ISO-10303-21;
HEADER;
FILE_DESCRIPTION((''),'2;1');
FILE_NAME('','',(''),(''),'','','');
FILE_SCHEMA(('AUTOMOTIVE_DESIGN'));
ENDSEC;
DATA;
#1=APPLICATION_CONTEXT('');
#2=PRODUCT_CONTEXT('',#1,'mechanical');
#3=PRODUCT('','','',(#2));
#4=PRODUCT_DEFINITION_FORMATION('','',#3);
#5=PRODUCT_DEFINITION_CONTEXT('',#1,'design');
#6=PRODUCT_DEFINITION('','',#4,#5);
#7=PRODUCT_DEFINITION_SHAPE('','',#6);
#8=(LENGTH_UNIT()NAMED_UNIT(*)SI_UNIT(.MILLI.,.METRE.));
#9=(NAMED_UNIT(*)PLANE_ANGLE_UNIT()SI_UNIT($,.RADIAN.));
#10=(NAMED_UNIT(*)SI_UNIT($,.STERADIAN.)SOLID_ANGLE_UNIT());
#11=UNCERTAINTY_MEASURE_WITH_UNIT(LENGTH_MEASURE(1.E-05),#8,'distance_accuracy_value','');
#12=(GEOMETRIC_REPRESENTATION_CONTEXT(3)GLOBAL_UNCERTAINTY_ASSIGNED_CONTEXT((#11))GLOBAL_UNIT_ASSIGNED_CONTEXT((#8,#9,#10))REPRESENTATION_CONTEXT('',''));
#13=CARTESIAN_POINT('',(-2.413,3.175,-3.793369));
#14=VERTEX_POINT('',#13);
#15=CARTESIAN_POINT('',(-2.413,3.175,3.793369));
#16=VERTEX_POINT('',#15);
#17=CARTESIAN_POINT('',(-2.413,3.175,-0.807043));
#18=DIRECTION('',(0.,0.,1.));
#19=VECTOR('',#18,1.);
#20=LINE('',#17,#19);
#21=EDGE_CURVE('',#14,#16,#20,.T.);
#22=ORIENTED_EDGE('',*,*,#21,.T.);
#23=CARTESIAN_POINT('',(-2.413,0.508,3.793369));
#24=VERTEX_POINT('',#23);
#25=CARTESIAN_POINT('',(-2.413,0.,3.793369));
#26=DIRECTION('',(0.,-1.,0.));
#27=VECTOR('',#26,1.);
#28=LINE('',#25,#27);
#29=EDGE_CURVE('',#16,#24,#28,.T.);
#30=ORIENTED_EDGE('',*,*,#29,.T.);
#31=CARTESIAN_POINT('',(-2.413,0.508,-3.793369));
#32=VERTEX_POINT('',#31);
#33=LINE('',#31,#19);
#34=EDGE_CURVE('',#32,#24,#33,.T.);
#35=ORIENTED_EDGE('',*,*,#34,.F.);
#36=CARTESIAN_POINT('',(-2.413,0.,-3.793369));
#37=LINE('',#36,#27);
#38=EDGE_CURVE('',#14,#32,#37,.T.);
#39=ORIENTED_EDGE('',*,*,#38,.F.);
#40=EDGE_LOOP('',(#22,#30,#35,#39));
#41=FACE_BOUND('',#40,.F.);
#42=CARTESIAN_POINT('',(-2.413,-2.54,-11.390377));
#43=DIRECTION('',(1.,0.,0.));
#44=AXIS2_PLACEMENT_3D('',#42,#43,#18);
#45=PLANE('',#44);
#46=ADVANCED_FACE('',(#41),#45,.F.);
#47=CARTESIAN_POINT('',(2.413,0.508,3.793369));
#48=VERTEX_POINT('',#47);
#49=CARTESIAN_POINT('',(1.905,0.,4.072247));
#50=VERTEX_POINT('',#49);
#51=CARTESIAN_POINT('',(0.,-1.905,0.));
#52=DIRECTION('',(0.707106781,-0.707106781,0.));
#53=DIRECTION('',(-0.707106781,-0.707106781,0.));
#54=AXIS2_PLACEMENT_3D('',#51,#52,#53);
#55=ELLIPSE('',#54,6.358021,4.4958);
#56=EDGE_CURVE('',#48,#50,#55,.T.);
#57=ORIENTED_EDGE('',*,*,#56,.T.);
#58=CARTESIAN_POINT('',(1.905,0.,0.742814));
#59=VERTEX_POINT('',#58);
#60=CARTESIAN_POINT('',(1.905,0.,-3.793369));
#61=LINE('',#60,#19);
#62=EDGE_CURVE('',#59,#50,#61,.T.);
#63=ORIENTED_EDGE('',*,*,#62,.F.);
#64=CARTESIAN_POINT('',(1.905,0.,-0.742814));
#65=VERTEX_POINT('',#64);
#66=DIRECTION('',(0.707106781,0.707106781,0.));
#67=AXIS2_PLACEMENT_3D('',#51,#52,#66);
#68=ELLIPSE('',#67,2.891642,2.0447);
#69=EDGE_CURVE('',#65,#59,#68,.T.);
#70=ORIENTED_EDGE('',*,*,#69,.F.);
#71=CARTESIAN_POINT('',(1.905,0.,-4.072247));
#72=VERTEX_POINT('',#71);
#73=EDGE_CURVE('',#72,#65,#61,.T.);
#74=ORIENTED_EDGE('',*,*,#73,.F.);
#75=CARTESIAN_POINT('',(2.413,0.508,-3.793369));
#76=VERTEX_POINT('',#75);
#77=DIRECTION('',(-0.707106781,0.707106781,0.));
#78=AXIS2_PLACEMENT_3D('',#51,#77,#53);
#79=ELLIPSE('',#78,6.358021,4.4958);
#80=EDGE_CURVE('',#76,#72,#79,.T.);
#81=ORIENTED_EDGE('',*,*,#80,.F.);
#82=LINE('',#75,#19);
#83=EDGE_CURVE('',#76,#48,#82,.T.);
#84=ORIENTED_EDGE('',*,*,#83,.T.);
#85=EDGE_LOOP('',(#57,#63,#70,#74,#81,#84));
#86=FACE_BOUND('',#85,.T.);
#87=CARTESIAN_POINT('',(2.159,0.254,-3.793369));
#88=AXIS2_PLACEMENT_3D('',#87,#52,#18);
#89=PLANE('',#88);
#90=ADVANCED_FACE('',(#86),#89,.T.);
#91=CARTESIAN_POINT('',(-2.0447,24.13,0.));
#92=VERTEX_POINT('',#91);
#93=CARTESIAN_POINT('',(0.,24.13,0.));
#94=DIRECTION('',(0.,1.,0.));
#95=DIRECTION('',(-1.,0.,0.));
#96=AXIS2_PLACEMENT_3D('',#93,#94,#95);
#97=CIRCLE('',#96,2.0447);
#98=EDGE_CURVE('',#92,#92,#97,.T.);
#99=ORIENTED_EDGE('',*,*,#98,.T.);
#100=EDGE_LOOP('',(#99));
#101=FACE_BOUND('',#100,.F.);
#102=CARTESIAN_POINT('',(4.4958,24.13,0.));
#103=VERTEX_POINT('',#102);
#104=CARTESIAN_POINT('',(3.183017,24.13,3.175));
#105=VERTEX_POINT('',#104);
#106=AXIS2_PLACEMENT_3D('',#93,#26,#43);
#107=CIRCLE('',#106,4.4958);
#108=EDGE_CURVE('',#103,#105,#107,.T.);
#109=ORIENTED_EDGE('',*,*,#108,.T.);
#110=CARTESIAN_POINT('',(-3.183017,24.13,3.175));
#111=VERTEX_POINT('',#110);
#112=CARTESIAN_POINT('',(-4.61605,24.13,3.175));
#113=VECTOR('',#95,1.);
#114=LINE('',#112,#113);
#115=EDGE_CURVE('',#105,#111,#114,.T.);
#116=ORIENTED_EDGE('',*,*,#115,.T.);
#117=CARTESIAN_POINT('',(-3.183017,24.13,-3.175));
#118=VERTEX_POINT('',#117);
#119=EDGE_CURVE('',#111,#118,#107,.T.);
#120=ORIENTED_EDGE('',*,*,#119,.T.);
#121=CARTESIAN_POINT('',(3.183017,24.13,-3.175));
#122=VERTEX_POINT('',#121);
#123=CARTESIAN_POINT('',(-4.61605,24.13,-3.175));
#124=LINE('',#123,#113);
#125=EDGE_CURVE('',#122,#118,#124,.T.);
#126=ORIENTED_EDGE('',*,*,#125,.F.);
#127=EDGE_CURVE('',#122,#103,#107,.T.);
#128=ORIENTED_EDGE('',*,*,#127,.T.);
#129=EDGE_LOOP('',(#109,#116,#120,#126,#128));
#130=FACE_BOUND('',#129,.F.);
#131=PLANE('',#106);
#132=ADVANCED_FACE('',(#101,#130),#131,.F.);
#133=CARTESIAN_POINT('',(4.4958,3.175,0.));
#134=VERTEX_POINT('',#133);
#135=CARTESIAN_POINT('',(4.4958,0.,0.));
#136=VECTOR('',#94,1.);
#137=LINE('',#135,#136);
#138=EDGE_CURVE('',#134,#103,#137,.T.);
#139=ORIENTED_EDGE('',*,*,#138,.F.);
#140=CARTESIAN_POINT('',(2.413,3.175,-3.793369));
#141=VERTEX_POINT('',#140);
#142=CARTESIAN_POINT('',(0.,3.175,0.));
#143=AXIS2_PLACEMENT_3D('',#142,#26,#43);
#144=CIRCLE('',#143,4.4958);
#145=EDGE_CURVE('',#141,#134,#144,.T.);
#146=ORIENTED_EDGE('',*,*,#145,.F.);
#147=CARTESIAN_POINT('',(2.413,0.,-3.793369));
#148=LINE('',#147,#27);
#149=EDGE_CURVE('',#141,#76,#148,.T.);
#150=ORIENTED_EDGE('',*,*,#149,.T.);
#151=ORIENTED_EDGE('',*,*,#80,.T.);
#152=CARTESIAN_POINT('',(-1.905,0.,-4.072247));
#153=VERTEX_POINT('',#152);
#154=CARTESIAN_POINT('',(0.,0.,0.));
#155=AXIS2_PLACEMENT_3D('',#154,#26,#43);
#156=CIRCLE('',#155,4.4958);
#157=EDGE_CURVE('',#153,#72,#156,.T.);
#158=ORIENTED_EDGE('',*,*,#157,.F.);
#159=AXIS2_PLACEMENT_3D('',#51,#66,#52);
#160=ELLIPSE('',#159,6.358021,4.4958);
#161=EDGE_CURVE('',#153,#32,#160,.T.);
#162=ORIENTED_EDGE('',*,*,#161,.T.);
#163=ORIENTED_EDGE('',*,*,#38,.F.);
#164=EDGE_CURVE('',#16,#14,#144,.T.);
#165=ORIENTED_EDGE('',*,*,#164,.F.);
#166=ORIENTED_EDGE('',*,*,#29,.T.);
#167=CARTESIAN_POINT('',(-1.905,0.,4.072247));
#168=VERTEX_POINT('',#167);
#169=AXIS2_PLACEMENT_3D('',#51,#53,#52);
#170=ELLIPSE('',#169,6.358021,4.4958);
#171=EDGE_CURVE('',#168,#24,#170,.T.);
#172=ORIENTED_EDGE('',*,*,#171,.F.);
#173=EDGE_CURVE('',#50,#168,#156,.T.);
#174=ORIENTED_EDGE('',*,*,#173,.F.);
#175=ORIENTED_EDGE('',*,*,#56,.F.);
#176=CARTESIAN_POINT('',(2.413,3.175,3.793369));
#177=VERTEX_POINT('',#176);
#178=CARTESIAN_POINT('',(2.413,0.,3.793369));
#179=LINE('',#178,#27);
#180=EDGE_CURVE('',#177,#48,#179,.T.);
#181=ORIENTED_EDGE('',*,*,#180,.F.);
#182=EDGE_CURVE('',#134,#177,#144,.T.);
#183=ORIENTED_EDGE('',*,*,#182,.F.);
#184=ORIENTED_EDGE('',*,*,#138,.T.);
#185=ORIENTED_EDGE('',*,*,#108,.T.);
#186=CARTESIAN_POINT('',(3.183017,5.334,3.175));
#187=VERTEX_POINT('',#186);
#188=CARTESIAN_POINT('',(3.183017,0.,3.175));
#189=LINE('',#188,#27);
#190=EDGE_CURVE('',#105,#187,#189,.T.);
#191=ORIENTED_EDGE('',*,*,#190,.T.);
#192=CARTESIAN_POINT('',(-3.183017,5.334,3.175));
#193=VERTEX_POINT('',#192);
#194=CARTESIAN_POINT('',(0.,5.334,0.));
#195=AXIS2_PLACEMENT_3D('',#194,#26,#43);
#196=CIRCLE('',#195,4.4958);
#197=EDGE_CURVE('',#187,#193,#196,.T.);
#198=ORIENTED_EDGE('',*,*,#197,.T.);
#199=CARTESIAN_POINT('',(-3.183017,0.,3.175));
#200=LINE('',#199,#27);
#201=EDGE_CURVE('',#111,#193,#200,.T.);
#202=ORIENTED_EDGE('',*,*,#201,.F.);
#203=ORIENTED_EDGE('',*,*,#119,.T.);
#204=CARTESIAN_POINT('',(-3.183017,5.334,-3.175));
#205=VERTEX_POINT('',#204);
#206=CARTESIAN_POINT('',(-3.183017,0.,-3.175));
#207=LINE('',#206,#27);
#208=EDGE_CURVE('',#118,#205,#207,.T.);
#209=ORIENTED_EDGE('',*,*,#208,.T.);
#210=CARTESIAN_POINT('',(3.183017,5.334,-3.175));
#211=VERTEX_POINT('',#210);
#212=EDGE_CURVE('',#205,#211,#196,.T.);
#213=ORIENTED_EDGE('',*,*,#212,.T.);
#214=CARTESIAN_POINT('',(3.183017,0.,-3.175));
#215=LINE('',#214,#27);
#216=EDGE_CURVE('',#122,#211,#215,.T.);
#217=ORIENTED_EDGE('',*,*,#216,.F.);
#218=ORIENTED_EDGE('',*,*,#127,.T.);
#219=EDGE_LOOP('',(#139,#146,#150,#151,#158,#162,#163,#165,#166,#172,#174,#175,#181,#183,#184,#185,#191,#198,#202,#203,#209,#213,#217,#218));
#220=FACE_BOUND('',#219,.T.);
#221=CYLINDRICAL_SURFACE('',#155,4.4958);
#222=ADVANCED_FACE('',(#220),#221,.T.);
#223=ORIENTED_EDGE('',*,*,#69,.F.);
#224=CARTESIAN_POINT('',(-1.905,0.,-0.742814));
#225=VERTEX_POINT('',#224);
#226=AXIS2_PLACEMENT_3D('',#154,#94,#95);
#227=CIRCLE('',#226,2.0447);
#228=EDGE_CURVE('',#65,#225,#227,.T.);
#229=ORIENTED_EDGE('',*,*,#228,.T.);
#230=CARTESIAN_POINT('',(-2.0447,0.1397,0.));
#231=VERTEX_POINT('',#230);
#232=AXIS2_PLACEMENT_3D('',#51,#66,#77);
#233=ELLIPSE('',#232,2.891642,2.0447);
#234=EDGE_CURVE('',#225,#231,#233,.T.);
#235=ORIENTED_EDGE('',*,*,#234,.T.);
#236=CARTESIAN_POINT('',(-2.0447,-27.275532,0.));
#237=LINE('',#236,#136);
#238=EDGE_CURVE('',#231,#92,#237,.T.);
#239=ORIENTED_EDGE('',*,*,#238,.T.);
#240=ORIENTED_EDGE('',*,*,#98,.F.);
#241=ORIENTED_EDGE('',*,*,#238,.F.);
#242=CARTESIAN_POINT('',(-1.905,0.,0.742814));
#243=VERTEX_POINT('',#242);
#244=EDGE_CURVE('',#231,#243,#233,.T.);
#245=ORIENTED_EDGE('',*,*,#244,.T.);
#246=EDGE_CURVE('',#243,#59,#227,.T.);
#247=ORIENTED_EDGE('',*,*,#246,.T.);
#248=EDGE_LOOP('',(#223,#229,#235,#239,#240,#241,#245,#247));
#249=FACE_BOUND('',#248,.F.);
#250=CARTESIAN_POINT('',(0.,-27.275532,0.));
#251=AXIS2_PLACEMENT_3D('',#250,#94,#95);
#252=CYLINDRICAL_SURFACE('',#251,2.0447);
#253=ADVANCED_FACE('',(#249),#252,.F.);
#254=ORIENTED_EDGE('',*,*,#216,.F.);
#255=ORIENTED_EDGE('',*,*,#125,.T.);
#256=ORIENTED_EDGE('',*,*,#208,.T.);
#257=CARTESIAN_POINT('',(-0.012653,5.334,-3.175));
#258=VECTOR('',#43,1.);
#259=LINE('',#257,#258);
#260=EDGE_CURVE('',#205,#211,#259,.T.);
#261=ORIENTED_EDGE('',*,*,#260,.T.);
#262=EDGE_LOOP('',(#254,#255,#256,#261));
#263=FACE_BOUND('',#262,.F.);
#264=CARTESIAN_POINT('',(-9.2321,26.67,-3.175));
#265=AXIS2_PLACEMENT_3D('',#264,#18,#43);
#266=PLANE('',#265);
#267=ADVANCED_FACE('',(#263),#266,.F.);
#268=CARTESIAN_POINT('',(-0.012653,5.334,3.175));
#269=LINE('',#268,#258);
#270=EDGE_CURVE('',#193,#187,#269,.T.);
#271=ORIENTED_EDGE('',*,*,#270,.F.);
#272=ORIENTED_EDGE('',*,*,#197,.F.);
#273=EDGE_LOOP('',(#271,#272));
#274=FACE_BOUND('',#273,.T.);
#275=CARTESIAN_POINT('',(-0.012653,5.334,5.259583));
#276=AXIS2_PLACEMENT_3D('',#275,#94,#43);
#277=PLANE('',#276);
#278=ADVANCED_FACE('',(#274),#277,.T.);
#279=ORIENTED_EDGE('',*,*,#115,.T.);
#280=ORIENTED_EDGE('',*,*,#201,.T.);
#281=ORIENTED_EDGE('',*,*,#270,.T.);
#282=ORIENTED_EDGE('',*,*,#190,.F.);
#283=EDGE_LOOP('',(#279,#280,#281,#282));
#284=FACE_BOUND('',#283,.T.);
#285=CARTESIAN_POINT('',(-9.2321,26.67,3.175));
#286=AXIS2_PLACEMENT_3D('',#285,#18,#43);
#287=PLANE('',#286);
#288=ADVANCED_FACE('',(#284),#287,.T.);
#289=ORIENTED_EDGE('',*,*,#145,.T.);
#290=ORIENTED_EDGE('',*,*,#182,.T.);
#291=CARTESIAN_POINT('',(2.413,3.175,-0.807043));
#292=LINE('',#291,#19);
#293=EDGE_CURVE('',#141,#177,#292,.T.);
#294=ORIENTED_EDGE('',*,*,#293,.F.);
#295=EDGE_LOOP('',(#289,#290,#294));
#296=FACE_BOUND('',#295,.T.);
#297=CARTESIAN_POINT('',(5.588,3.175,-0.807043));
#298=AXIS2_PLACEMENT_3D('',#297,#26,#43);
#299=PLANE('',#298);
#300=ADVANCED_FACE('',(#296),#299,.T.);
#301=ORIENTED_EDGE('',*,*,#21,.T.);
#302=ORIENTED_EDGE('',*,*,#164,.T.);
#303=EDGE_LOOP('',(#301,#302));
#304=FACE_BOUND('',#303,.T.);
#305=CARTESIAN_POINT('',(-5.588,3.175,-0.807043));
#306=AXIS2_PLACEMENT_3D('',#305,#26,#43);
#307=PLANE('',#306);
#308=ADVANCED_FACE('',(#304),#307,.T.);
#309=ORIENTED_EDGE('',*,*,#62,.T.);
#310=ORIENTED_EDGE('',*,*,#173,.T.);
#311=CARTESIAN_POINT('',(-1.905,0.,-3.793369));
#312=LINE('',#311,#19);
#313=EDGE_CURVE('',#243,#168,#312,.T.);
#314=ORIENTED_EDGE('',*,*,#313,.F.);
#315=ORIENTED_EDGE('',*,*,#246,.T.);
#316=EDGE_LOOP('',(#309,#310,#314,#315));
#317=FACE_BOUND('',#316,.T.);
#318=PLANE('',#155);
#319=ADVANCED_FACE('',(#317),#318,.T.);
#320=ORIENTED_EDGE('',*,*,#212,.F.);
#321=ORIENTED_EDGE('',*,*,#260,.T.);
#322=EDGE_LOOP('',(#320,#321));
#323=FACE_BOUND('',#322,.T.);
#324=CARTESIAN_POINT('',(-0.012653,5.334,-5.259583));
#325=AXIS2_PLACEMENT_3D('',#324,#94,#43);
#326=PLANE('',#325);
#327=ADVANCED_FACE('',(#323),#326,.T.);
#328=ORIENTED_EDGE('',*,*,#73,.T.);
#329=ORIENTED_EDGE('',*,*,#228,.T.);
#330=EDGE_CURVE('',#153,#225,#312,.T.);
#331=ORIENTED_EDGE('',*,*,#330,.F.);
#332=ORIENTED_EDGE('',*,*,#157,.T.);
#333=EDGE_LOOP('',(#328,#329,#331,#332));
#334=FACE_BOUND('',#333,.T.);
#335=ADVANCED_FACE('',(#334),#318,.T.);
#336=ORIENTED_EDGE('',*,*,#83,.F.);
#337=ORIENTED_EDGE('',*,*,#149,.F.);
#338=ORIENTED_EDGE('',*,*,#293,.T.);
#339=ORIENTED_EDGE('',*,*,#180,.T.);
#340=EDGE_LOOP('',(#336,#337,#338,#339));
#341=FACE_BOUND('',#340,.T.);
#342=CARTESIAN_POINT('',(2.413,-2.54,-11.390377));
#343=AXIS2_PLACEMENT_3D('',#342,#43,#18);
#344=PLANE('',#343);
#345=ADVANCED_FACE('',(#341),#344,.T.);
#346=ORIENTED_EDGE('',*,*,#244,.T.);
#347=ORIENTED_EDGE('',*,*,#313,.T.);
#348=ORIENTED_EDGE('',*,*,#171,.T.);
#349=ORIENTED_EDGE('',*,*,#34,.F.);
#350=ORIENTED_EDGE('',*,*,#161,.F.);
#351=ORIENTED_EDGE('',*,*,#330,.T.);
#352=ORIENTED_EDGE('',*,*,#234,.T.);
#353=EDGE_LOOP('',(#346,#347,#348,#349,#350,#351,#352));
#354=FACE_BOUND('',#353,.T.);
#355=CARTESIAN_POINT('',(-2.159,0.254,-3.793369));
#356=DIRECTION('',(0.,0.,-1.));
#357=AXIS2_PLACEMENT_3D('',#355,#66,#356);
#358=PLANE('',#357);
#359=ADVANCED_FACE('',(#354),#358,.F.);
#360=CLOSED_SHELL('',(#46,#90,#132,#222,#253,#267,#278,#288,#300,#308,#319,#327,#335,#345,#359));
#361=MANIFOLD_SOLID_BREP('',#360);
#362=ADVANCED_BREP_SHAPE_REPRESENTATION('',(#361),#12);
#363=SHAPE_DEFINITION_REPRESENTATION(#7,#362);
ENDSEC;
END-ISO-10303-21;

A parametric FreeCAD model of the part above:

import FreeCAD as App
import Part
import Sketcher
from FreeCAD import Vector
Q = App.Units.Quantity


def edges_at(feature, points):
    """Names of the edges that pass closest to the given points."""
    edges = feature.Shape.Edges
    near = lambda p: min(range(len(edges)), key=lambda i: edges[i].distToShape(Part.Vertex(*p))[0])
    return sorted({f"Edge{near(p) + 1}" for p in points})


def add_polygon(sketch, points):
    """Adds a closed chain of lines whose ends are joined by coincident constraints."""
    first, n = sketch.GeometryCount, len(points)
    for a, b in zip(points, points[1:] + points[:1]):
        sketch.addGeometry(Part.LineSegment(App.Vector(*a, 0), App.Vector(*b, 0)), False)
    for i in range(n):
        sketch.addConstraint(Sketcher.Constraint("Coincident", first + i, 2, first + (i + 1) % n, 1))

doc = App.newDocument("Part")
body = doc.addObject("PartDesign::Body", "Body")

# Sketch on XZ plane
sketch1 = body.newObject("Sketcher::SketchObject", "Sketch")
sketch1.AttachmentSupport = (doc.getObject("XZ_Plane"), [""])
sketch1.MapMode = "FlatFace"
sketch1.addGeometry(Part.Circle(Vector(0, 0, 0), Vector(0, 0, 1), 4.5), False)
sketch1.addConstraint([
    Sketcher.Constraint("Coincident", 0, 3, -1, 1),
    Sketcher.Constraint("Diameter", 0, Q("0.354 in")),
])
pad1 = body.newObject("PartDesign::Pad", "Pad")
pad1.Profile = sketch1
pad1.Length = Q("0.95 in")
pad1.Reversed = True

# Sketch on XZ plane
sketch2 = body.newObject("Sketcher::SketchObject", "Sketch001")
sketch2.AttachmentSupport = (doc.getObject("XZ_Plane"), [""])
sketch2.MapMode = "FlatFace"
sketch2.AttachmentOffset = App.Placement(Vector(0, 0, 0.1 * 25.4), App.Rotation())
add_polygon(sketch2, [(-9, 10), (-9, -11), (-2, -11), (-2, 10)])  # lines 0-3
add_polygon(sketch2, [(2, 10), (2, -11), (9, -11), (9, 10)])  # lines 4-7
sketch2.addConstraint([
    Sketcher.Constraint("Vertical", 0),
    Sketcher.Constraint("Horizontal", 1),
    Sketcher.Constraint("Vertical", 2),
    Sketcher.Constraint("Horizontal", 3),
    Sketcher.Constraint("Vertical", 4),
    Sketcher.Constraint("Horizontal", 5),
    Sketcher.Constraint("Vertical", 6),
    Sketcher.Constraint("Horizontal", 7),
    Sketcher.Constraint("Symmetric", 1, 2, 4, 2, -2),
    Sketcher.Constraint("Symmetric", 3, 2, 6, 2, -2),
    Sketcher.Constraint("DistanceX", 1, 1, 1, 2, Q("0.25 in")),
    Sketcher.Constraint("DistanceX", 1, 2, 4, 2, Q("0.19 in")),
    Sketcher.Constraint("DistanceY", 0, 2, 0, 1, Q("21.166668 mm")),
    Sketcher.Constraint("DistanceY", -1, 1, 2, 2, Q("9.776291 mm")),
])
pocket1 = body.newObject("PartDesign::Pocket", "Pocket")
pocket1.Profile = sketch2
pocket1.Length = Q("0.225 in")
doc.recompute()

chamfer = body.newObject("PartDesign::Chamfer", "Chamfer")
chamfer.Base = (pocket1, edges_at(pocket1, [(-2.413, 0, 0), (2.413, 0, 0)]))
chamfer.Size = Q("0.02 in")

# Sketch on XZ plane
sketch3 = body.newObject("Sketcher::SketchObject", "Sketch002")
sketch3.AttachmentSupport = (doc.getObject("XZ_Plane"), [""])
sketch3.MapMode = "FlatFace"
sketch3.AttachmentOffset = App.Placement(Vector(0, 0, -1.05 * 25.4), App.Rotation())
add_polygon(sketch3, [(-9.2, -7.3), (-9.2, -3.2), (9.2, -3.2), (9.2, -7.3)])  # lines 0-3
add_polygon(sketch3, [(-9.2, 3.2), (-9.2, 7.3), (9.2, 7.3), (9.2, 3.2)])  # lines 4-7
sketch3.addConstraint([
    Sketcher.Constraint("Vertical", 0),
    Sketcher.Constraint("Horizontal", 1),
    Sketcher.Constraint("Vertical", 2),
    Sketcher.Constraint("Horizontal", 3),
    Sketcher.Constraint("Vertical", 4),
    Sketcher.Constraint("Horizontal", 5),
    Sketcher.Constraint("Vertical", 6),
    Sketcher.Constraint("Horizontal", 7),
    Sketcher.Constraint("Symmetric", 3, 2, 4, 2, -1),
    Sketcher.Constraint("Symmetric", 1, 2, 6, 2, -1),
    Sketcher.Constraint("DistanceY", 1, 2, 6, 2, Q("0.25 in")),
    Sketcher.Constraint("DistanceX", 0, 2, -1, 1, Q("9.2321 mm")),
    Sketcher.Constraint("DistanceX", 1, 1, 1, 2, Q("18.438894 mm")),
    Sketcher.Constraint("DistanceY", 0, 1, 0, 2, Q("4.169167 mm")),
])
pocket2 = body.newObject("PartDesign::Pocket", "Pocket001")
pocket2.Profile = sketch3
pocket2.Length = Q("0.84 in")
pocket2.Reversed = True

# Sketch on XZ plane
sketch4 = body.newObject("Sketcher::SketchObject", "Sketch003")
sketch4.AttachmentSupport = (doc.getObject("XZ_Plane"), [""])
sketch4.MapMode = "FlatFace"
sketch4.addGeometry(Part.Circle(Vector(0, 0, 0), Vector(0, 0, 1), 2), False)
sketch4.addConstraint([
    Sketcher.Constraint("Coincident", 0, 3, -1, 1),
    Sketcher.Constraint("Diameter", 0, Q("0.161 in")),
])
doc.recompute()
hole = body.newObject("PartDesign::Hole", "Hole")
hole.Profile = sketch4
hole.ThreadType = "None"
hole.Diameter = Q("0.161 in")
hole.DepthType = "ThroughAll"

doc.recompute()
